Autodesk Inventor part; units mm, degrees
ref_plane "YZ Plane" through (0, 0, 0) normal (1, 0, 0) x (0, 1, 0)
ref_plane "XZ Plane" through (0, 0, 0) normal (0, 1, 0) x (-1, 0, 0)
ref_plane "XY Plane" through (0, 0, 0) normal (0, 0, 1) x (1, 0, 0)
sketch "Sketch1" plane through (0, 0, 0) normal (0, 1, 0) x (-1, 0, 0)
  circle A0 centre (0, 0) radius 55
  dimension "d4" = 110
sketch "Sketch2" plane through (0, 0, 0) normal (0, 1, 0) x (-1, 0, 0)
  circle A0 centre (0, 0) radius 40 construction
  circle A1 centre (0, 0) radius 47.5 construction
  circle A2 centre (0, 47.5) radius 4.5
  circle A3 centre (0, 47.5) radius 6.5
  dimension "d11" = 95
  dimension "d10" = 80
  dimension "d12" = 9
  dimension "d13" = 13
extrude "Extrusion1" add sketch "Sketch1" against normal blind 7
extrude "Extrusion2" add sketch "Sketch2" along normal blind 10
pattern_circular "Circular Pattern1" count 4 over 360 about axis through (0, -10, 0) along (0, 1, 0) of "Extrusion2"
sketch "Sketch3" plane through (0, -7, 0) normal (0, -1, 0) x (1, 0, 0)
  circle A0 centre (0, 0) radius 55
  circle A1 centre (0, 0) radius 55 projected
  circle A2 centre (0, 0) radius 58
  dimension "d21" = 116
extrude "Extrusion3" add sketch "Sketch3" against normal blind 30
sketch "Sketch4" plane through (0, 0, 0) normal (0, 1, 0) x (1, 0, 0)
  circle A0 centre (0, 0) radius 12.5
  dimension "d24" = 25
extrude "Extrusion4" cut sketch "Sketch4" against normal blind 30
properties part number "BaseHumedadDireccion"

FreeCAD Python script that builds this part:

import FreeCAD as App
import Part
import Sketcher

V = App.Vector

doc = App.newDocument("Part")
body = doc.addObject("PartDesign::Body", "Body")

sketch1 = body.newObject("Sketcher::SketchObject", "Sketch")
sketch1.AttachmentSupport = (doc.getObject("XZ_Plane"), [""])
sketch1.MapMode = "FlatFace"
sketch1.addGeometry(Part.Circle(V(0, 0, 0), V(0, 0, 1), 55), False)
sketch1.addConstraint([
    Sketcher.Constraint("Coincident", 0, 3, -1, 1),
    Sketcher.Constraint("Diameter", 0, 110.0),
])
pad1 = body.newObject("PartDesign::Pad", "Pad")
pad1.Profile = sketch1
pad1.Length = 7

sketch2 = body.newObject("Sketcher::SketchObject", "Sketch001")
sketch2.AttachmentSupport = (doc.getObject("XZ_Plane"), [""])
sketch2.MapMode = "FlatFace"
sketch2.addGeometry([
    Part.Circle(V(0, 47.5, 0), V(0, 0, 1), 6.5),
    Part.Circle(V(0, 47.5, 0), V(0, 0, 1), 4.5),
], False)
sketch2.addConstraint([
    Sketcher.Constraint("Coincident", 1, 3, 0, 3),
    Sketcher.Constraint("PointOnObject", 0, 3, -2),
    Sketcher.Constraint("Diameter", 0, 13.0),
    Sketcher.Constraint("Diameter", 1, 9.0),
    Sketcher.Constraint("DistanceY", -1, 1, 0, 3, 47.5),
])
pad2 = body.newObject("PartDesign::Pad", "Pad001")
pad2.Profile = sketch2
pad2.Length = 10
pad2.Reversed = True
doc.recompute()

polarpattern = body.newObject("PartDesign::PolarPattern", "PolarPattern")
polarpattern.Originals = [pad2]
polarpattern.Axis = (doc.getObject("Y_Axis"), [""])
polarpattern.Angle = 360
polarpattern.Occurrences = 4
body.Tip = polarpattern

sketch3 = body.newObject("Sketcher::SketchObject", "Sketch002")
sketch3.AttachmentSupport = (doc.getObject("XZ_Plane"), [""])
sketch3.MapMode = "FlatFace"
sketch3.AttachmentOffset = App.Placement(V(0, 0, 7), App.Rotation())
sketch3.addGeometry([
    Part.Circle(V(0, 0, 0), V(0, 0, 1), 58),
    Part.Circle(V(0, 0, 0), V(0, 0, 1), 55),
], False)
sketch3.addConstraint([
    Sketcher.Constraint("Coincident", 0, 3, -1, 1),
    Sketcher.Constraint("Coincident", 1, 3, -1, 1),
    Sketcher.Constraint("Diameter", 0, 116.0),
    Sketcher.Constraint("Diameter", 1, 110.0),
])
pad3 = body.newObject("PartDesign::Pad", "Pad002")
pad3.Profile = sketch3
pad3.Length = 30
pad3.Reversed = True

sketch4 = body.newObject("Sketcher::SketchObject", "Sketch003")
sketch4.AttachmentSupport = (doc.getObject("XZ_Plane"), [""])
sketch4.MapMode = "FlatFace"
sketch4.addGeometry(Part.Circle(V(0, 0, 0), V(0, 0, 1), 12), False)
sketch4.addConstraint([
    Sketcher.Constraint("Coincident", 0, 3, -1, 1),
    Sketcher.Constraint("Diameter", 0, 25.0),
])
pocket1 = body.newObject("PartDesign::Pocket", "Pocket")
pocket1.Profile = sketch4
pocket1.Length = 30
pocket1.Reversed = True

doc.recompute()
